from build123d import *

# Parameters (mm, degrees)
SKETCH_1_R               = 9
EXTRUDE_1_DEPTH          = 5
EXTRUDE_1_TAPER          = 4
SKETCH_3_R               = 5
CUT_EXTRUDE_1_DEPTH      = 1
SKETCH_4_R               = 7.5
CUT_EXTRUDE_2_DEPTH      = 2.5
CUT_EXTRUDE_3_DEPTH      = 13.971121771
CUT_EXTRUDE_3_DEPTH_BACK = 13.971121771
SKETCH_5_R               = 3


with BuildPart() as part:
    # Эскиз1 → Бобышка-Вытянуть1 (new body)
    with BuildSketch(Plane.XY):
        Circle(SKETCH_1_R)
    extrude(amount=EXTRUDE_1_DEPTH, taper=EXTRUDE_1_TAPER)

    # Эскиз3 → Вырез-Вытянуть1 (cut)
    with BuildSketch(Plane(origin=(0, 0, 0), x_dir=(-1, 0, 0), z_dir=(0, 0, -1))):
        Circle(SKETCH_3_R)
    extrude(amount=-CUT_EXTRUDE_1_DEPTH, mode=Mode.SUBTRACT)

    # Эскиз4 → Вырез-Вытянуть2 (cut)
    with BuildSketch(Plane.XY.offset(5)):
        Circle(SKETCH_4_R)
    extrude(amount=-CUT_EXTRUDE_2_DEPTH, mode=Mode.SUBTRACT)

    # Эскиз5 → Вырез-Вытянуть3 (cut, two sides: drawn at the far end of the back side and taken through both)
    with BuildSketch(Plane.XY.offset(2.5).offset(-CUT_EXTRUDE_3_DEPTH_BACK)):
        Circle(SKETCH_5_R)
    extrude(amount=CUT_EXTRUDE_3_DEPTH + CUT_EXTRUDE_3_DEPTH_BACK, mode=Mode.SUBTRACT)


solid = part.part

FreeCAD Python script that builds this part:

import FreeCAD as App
import Part
import Sketcher
Q = App.Units.Quantity

doc = App.newDocument("Part")
body = doc.addObject("PartDesign::Body", "Body")

# Sketch on XY plane
sketch1 = body.newObject("Sketcher::SketchObject", "Sketch")
sketch1.AttachmentSupport = (doc.getObject("XY_Plane"), [""])
sketch1.MapMode = "FlatFace"
sketch1.addGeometry(Part.Circle(App.Vector(0, 0, 0), App.Vector(0, 0, 1), 9), False)
sketch1.addConstraint([
    Sketcher.Constraint("Coincident", 0, 3, -1, 1),
    Sketcher.Constraint("Diameter", 0, Q("18 mm")),
])
pad1 = body.newObject("PartDesign::Pad", "Pad")
pad1.Profile = sketch1
pad1.Length = 5
pad1.TaperAngle = -4

# Sketch on XY plane
sketch2 = body.newObject("Sketcher::SketchObject", "Sketch001")
sketch2.AttachmentSupport = (doc.getObject("XY_Plane"), [""])
sketch2.MapMode = "FlatFace"
sketch2.addGeometry(Part.Circle(App.Vector(0, 0, 0), App.Vector(0, 0, 1), 5), False)
sketch2.addConstraint([
    Sketcher.Constraint("Coincident", 0, 3, -1, 1),
    Sketcher.Constraint("Diameter", 0, Q("10 mm")),
])
pocket1 = body.newObject("PartDesign::Pocket", "Pocket")
pocket1.Profile = sketch2
pocket1.Length = 1
pocket1.Reversed = True

# Sketch on XY plane
sketch3 = body.newObject("Sketcher::SketchObject", "Sketch002")
sketch3.AttachmentSupport = (doc.getObject("XY_Plane"), [""])
sketch3.MapMode = "FlatFace"
sketch3.AttachmentOffset = App.Placement(App.Vector(0, 0, 5), App.Rotation())
sketch3.addGeometry(Part.Circle(App.Vector(0, 0, 0), App.Vector(0, 0, 1), 8), False)
sketch3.addConstraint([
    Sketcher.Constraint("Coincident", 0, 3, -1, 1),
    Sketcher.Constraint("Diameter", 0, Q("15 mm")),
])
pocket2 = body.newObject("PartDesign::Pocket", "Pocket001")
pocket2.Profile = sketch3
pocket2.Length = 2.5

# Sketch on XY plane
sketch4 = body.newObject("Sketcher::SketchObject", "Sketch003")
sketch4.AttachmentSupport = (doc.getObject("XY_Plane"), [""])
sketch4.MapMode = "FlatFace"
sketch4.AttachmentOffset = App.Placement(App.Vector(0, 0, 2.5), App.Rotation())
sketch4.addGeometry(Part.Circle(App.Vector(0, 0, 0), App.Vector(0, 0, 1), 3), False)
sketch4.addConstraint([
    Sketcher.Constraint("Coincident", 0, 3, -1, 1),
    Sketcher.Constraint("Diameter", 0, Q("6 mm")),
])
pocket3 = body.newObject("PartDesign::Pocket", "Pocket002")
pocket3.Profile = sketch4
pocket3.Type = "ThroughAll"
pocket3.Midplane = True

doc.recompute()
